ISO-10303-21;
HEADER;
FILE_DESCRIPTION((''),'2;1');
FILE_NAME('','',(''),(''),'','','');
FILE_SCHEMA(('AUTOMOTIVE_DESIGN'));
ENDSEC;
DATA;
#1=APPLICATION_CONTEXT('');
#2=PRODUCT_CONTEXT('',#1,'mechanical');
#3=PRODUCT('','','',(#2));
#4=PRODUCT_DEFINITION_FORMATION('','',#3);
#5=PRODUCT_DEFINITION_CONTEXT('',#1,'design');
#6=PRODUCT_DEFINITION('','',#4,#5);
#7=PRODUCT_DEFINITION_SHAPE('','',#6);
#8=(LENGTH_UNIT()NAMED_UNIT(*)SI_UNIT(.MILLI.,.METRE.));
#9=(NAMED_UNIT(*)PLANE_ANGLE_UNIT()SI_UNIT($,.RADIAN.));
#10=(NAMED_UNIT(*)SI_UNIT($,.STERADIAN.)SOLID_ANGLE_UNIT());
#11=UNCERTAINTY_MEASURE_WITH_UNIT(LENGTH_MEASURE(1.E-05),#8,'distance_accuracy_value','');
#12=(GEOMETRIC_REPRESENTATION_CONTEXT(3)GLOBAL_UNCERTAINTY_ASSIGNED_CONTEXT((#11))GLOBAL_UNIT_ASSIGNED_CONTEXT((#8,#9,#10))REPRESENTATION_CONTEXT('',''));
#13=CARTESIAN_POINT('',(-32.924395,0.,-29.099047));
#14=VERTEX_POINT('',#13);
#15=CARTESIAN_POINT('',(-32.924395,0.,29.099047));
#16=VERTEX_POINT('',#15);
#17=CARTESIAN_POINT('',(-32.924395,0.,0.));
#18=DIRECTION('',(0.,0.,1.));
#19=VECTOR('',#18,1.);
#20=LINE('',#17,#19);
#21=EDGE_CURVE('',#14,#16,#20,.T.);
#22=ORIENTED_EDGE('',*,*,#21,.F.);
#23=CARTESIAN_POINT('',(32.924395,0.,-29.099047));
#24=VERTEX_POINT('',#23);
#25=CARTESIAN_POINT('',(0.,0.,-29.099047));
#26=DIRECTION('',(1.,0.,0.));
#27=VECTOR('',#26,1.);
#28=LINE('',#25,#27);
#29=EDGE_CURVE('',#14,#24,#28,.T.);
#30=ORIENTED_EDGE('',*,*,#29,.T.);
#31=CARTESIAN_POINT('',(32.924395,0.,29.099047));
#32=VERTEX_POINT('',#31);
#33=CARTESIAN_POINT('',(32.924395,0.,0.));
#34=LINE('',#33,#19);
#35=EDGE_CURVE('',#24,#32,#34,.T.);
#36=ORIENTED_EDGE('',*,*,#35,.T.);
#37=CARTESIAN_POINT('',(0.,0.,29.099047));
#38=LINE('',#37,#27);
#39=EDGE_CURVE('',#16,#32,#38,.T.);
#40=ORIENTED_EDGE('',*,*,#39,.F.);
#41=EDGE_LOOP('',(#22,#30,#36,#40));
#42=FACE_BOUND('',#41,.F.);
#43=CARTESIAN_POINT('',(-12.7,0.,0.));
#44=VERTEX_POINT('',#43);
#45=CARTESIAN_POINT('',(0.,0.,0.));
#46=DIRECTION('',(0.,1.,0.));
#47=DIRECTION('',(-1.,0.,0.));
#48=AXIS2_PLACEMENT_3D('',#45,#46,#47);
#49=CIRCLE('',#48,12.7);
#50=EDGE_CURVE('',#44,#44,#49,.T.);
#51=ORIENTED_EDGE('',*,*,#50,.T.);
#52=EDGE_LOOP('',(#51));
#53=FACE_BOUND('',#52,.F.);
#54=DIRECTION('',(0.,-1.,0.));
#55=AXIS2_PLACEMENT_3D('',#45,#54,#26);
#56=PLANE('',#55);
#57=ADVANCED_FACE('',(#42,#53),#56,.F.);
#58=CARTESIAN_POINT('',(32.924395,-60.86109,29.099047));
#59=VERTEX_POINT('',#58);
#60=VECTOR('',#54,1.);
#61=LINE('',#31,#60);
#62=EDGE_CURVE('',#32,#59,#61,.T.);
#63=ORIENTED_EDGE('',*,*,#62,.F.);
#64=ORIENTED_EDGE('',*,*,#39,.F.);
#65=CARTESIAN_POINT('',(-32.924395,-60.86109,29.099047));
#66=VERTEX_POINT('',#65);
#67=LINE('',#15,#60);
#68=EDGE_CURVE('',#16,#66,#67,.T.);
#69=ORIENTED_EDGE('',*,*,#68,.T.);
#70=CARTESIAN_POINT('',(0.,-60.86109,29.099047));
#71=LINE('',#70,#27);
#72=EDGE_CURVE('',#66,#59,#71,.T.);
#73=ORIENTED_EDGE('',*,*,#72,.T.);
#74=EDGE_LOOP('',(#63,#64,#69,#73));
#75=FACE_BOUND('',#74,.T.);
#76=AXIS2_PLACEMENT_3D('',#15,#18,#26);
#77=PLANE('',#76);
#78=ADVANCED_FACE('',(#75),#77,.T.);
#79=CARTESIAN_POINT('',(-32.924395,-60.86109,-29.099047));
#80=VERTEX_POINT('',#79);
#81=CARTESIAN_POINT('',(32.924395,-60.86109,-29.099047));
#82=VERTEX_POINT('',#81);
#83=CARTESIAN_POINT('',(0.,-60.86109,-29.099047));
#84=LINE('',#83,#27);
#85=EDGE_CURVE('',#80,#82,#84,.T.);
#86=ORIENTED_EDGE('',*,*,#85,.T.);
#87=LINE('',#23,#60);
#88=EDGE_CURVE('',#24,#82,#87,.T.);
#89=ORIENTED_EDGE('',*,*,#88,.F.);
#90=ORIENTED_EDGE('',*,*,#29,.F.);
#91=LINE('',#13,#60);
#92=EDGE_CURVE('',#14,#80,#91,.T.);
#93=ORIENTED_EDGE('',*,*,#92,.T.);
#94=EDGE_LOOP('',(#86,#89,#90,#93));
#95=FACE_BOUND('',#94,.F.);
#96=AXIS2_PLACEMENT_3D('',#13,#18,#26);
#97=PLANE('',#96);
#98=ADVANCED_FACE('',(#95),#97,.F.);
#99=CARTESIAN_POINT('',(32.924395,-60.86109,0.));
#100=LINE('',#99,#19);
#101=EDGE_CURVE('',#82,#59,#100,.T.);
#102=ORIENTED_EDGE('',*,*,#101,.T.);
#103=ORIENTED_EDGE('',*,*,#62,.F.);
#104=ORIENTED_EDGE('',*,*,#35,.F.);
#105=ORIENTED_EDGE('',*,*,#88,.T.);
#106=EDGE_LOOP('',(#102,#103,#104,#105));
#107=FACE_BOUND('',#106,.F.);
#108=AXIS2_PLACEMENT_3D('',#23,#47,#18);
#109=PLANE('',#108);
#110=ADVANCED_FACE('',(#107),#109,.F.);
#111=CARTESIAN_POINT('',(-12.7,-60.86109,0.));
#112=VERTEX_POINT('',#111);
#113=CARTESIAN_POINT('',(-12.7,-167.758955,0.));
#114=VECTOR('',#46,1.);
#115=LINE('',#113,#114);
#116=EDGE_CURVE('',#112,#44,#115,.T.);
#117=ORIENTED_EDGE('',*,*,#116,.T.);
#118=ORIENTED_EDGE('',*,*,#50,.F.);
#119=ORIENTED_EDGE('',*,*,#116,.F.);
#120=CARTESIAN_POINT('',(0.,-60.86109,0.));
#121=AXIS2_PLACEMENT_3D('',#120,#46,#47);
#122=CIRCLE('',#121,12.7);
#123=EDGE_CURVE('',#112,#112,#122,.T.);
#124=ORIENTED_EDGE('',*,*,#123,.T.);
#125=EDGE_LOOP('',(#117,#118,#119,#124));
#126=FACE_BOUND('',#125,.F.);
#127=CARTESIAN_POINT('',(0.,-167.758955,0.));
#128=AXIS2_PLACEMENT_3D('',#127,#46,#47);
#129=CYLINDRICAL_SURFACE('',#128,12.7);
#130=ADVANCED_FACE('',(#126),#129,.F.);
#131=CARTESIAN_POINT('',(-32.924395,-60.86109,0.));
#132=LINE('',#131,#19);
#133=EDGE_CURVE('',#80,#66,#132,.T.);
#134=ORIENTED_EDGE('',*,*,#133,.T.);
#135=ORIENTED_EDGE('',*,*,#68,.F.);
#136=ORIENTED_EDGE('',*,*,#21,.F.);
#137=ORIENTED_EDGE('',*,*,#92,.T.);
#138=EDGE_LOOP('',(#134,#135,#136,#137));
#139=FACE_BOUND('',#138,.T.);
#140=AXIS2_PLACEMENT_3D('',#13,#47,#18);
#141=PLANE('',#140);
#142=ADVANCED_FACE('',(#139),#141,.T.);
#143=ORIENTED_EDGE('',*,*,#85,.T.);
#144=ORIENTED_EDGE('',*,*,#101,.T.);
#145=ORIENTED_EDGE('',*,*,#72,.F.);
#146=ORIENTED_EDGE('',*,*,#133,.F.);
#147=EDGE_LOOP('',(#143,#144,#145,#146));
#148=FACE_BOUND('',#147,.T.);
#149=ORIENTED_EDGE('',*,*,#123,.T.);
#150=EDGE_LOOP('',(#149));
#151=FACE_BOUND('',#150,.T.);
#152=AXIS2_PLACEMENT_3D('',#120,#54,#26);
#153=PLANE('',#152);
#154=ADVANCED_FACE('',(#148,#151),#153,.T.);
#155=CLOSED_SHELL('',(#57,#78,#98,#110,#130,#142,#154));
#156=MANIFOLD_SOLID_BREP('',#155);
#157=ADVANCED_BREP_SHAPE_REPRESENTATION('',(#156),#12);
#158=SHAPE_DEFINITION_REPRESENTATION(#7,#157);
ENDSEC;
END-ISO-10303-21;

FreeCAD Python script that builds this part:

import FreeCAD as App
import Part
import Sketcher
Q = App.Units.Quantity


def add_polygon(sketch, points):
    """Adds a closed chain of lines whose ends are joined by coincident constraints."""
    first, n = sketch.GeometryCount, len(points)
    for a, b in zip(points, points[1:] + points[:1]):
        sketch.addGeometry(Part.LineSegment(App.Vector(*a, 0), App.Vector(*b, 0)), False)
    for i in range(n):
        sketch.addConstraint(Sketcher.Constraint("Coincident", first + i, 2, first + (i + 1) % n, 1))

doc = App.newDocument("Part")
body = doc.addObject("PartDesign::Body", "Body")

sketch1 = body.newObject("Sketcher::SketchObject", "Sketch")
sketch1.AttachmentSupport = (doc.getObject("XZ_Plane"), [""])
sketch1.MapMode = "FlatFace"
add_polygon(sketch1, [(-33, 29), (-33, -29), (33, -29), (33, 29)])
sketch1.addConstraint(Sketcher.Constraint("Vertical", 0))
sketch1.addConstraint(Sketcher.Constraint("Horizontal", 1))
sketch1.addConstraint(Sketcher.Constraint("Vertical", 2))
sketch1.addConstraint(Sketcher.Constraint("Horizontal", 3))
sketch1.addConstraint(Sketcher.Constraint("Symmetric", 0, 2, 2, 2, -1, 1))
sketch1.addConstraint(Sketcher.Constraint("DistanceX", 1, 1, 1, 2, Q("65.84879 mm")))
sketch1.addConstraint(Sketcher.Constraint("DistanceY", 0, 2, 0, 1, Q("58.198094 mm")))
pad1 = body.newObject("PartDesign::Pad", "Pad")
pad1.Profile = sketch1
pad1.Length = 60.86109

sketch2 = body.newObject("Sketcher::SketchObject", "Sketch001")
sketch2.AttachmentSupport = (doc.getObject("XZ_Plane"), [""])
sketch2.MapMode = "FlatFace"
sketch2.AttachmentOffset = App.Placement(App.Vector(0, 0, 60.86109), App.Rotation())
sketch2.addGeometry(Part.Circle(App.Vector(0, 0, 0), App.Vector(0, 0, 1), 13), False)
sketch2.addConstraint(Sketcher.Constraint("Coincident", 0, 3, -1, 1))
sketch2.addConstraint(Sketcher.Constraint("Diameter", 0, Q("1 in")))
doc.recompute()
hole = body.newObject("PartDesign::Hole", "Hole")
hole.Profile = sketch2
hole.ThreadType = "None"
hole.Diameter = Q("1 in")
hole.DepthType = "ThroughAll"

doc.recompute()
